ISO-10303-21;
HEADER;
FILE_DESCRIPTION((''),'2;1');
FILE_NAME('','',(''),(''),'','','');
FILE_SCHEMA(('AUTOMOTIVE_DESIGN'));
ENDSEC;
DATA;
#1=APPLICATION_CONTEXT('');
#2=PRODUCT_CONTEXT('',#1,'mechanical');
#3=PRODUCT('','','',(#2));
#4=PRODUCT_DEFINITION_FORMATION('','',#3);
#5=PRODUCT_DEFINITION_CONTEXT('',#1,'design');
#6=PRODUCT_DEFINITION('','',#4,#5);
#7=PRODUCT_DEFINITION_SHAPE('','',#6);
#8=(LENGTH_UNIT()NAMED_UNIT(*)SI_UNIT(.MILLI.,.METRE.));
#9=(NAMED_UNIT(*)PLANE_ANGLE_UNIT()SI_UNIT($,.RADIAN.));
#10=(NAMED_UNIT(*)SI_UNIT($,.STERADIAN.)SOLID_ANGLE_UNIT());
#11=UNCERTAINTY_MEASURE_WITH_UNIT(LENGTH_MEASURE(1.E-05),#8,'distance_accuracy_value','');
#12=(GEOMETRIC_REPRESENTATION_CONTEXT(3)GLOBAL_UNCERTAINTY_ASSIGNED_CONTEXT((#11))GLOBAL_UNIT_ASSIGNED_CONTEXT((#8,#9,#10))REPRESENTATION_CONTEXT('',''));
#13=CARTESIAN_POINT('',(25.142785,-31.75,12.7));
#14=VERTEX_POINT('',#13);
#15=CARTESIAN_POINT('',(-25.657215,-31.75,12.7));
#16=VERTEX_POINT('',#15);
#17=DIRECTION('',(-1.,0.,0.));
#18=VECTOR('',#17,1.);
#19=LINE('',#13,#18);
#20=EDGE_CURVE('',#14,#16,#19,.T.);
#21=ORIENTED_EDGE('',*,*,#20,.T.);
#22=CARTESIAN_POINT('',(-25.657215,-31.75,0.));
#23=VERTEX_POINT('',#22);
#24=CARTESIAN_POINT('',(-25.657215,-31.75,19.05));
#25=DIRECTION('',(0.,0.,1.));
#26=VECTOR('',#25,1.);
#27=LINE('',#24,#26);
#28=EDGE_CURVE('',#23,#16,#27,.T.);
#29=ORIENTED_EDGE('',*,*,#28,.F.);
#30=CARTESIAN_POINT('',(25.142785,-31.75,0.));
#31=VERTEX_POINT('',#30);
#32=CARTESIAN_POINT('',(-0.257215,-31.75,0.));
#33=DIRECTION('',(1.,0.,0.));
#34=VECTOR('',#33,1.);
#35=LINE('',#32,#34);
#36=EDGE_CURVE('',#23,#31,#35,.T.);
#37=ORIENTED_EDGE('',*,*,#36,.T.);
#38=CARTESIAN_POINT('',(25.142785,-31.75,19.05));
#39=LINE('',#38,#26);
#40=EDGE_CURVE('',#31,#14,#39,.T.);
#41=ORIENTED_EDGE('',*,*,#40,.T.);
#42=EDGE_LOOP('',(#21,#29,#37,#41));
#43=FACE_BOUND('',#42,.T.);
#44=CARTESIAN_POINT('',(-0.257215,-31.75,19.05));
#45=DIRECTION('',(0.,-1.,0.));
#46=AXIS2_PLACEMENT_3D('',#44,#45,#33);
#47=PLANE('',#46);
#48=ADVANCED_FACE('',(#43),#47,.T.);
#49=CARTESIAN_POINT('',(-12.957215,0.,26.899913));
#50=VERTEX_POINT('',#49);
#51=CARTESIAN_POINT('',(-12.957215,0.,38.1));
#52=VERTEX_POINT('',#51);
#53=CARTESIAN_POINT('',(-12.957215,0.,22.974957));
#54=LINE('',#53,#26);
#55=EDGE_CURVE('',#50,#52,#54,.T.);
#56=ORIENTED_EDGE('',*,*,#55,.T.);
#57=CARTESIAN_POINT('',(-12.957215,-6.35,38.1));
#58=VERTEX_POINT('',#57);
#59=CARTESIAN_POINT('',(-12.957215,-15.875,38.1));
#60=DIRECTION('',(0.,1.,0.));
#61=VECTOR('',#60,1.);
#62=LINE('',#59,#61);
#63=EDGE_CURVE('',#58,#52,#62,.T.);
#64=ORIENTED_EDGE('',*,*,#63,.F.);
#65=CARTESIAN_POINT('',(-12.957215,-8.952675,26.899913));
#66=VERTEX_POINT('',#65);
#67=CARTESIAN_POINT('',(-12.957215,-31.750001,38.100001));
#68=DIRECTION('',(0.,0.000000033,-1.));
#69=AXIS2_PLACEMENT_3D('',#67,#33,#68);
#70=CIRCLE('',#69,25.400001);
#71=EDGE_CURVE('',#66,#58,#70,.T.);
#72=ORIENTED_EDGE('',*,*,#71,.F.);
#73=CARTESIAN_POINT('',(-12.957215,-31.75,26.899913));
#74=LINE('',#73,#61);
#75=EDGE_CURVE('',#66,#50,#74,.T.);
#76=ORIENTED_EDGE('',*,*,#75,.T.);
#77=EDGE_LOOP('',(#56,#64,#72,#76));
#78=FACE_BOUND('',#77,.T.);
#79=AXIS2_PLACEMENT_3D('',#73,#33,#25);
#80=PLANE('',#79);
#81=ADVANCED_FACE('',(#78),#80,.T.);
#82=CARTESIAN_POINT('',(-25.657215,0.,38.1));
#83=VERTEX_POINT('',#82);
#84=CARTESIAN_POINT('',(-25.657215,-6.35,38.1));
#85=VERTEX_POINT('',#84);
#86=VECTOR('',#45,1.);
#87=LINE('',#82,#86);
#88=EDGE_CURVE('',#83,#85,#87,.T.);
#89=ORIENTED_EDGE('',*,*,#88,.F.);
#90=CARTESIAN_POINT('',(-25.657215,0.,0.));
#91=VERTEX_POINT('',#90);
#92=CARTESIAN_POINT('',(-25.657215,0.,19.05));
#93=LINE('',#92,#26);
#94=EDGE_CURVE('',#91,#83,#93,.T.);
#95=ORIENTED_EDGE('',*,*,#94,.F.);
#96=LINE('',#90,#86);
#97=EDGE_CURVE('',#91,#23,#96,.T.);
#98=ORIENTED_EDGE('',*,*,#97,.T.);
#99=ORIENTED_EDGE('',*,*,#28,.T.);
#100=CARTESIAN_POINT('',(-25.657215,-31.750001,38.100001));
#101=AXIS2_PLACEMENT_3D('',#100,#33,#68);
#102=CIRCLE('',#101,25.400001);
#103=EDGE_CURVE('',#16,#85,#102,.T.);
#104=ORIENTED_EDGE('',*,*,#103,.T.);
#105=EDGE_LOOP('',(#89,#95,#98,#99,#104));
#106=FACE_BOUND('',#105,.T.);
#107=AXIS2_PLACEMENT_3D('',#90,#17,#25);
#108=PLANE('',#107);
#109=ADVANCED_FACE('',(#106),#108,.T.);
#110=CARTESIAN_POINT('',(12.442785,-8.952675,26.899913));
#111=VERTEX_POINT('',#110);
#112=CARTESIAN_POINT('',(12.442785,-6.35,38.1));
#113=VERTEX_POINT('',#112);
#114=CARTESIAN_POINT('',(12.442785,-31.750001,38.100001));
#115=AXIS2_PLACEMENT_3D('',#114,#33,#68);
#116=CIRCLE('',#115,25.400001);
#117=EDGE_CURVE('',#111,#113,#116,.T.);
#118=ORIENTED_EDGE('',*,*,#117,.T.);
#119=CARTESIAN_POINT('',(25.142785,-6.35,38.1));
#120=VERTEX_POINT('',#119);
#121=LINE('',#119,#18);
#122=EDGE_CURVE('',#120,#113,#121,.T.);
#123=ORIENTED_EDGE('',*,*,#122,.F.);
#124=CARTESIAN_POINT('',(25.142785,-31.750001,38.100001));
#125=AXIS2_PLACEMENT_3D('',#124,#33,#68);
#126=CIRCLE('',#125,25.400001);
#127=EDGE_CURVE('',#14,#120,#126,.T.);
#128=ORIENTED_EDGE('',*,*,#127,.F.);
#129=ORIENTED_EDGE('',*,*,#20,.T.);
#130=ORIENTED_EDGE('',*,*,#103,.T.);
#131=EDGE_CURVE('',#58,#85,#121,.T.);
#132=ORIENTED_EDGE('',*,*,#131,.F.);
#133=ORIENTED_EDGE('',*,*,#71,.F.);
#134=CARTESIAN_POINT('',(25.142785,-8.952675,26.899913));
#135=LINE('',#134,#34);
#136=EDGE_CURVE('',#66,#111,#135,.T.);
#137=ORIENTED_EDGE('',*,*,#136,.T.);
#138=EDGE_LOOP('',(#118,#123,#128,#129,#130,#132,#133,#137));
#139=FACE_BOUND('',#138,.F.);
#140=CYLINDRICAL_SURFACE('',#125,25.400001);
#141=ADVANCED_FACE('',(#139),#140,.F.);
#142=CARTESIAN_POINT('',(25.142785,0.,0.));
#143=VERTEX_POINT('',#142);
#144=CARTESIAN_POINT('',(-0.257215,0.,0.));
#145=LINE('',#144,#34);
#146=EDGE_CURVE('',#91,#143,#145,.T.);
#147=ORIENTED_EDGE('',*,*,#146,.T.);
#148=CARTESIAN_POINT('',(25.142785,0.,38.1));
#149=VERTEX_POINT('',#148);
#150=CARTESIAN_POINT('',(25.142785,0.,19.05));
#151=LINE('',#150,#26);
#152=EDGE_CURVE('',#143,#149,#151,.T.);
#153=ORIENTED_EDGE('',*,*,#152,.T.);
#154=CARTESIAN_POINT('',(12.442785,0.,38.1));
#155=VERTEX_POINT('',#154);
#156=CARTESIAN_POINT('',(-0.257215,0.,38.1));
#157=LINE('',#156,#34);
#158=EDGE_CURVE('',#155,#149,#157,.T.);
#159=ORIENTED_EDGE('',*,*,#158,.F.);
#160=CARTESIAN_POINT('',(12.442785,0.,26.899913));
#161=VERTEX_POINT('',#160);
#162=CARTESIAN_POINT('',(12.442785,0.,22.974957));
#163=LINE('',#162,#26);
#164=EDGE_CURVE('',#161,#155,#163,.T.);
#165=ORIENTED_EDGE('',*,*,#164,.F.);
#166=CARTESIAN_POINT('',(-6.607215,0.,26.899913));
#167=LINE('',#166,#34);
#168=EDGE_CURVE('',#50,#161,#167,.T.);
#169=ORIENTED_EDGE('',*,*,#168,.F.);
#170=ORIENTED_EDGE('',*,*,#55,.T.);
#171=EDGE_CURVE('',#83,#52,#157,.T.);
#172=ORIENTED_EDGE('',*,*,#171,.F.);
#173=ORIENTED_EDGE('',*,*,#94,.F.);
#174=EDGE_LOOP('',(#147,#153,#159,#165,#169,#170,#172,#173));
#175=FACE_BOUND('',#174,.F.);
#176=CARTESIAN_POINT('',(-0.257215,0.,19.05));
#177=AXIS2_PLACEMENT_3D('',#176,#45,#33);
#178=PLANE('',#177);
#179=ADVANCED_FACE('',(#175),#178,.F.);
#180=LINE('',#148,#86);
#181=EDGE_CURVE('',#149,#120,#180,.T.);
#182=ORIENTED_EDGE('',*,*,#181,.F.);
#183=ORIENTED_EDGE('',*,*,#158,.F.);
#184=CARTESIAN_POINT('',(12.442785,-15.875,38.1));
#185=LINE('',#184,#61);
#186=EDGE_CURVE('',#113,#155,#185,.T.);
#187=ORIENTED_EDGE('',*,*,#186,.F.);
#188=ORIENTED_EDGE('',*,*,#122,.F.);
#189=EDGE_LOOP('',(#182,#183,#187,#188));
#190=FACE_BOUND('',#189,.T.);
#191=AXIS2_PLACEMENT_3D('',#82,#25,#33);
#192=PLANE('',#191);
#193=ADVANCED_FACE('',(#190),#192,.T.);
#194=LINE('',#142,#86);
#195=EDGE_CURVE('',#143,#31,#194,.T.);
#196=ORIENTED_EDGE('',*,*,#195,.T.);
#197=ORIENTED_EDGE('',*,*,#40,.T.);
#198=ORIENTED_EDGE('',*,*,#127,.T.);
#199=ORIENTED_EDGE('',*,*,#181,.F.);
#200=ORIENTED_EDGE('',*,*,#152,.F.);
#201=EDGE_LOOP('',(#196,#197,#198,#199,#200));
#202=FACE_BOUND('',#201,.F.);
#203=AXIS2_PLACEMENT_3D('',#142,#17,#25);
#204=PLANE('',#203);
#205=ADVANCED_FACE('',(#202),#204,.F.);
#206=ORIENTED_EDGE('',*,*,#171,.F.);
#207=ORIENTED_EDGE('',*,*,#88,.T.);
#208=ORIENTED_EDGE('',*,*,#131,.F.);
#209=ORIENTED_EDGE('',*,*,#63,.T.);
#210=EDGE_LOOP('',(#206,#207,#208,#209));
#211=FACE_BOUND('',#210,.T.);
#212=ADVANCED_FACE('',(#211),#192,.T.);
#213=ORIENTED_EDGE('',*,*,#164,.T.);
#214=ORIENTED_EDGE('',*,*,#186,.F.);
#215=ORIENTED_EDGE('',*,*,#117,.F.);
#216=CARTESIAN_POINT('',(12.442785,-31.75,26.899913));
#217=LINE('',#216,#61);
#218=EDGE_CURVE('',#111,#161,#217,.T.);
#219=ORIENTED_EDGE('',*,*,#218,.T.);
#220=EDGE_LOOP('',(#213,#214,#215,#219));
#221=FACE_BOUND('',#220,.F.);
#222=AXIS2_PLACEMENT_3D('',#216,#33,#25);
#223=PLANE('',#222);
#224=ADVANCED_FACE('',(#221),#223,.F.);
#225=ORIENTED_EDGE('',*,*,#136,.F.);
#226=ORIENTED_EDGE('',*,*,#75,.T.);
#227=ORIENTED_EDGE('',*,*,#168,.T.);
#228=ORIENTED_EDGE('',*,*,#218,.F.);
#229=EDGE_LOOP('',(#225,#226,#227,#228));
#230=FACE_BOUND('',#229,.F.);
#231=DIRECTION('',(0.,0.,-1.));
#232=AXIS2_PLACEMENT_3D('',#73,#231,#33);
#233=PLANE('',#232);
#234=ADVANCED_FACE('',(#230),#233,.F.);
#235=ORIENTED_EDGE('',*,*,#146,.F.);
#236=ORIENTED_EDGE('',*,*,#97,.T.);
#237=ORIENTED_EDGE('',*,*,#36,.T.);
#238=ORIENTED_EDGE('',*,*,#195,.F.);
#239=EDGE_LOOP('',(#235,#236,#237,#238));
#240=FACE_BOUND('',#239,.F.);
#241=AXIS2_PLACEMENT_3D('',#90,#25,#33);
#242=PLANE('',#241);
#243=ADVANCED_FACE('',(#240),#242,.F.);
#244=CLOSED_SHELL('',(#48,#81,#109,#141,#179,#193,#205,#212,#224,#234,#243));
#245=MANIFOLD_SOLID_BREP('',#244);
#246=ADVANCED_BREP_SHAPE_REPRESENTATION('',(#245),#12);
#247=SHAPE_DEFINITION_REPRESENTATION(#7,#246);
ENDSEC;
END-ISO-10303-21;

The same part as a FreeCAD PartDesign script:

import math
import FreeCAD as App
import Part
import Sketcher
from FreeCAD import Vector
Q = App.Units.Quantity

doc = App.newDocument("Part")
params = doc.addObject("Spreadsheet::Sheet", "Params")
for row, (alias, value) in enumerate([
    ("sketch1_width", "2 in"),
    ("sketch1_height", "1.5 in"),
    ("pad1_length", "1.25 in"),
    ("sketch2_radius", "1 in"),
    ("sketch3_width", "1 in"),
], start=1):
    params.set(f"A{row}", alias)
    params.set(f"B{row}", "=" + value)
    params.setAlias(f"B{row}", alias)

body = doc.addObject("PartDesign::Body", "Body")

# Sketch on XZ plane
sketch1 = body.newObject("Sketcher::SketchObject", "Sketch")
sketch1.AttachmentSupport = (doc.getObject("XZ_Plane"), [""])
sketch1.MapMode = "FlatFace"
sketch1.addGeometry([
    Part.LineSegment(Vector(-26, 38, 0), Vector(-26, 0, 0)),
    Part.LineSegment(Vector(-26, 0, 0), Vector(25, 0, 0)),
    Part.LineSegment(Vector(25, 0, 0), Vector(25, 38, 0)),
    Part.LineSegment(Vector(25, 38, 0), Vector(-26, 38, 0)),
], False)
sketch1.addConstraint([
    Sketcher.Constraint("Coincident", 0, 2, 1, 1),
    Sketcher.Constraint("Coincident", 1, 2, 2, 1),
    Sketcher.Constraint("Coincident", 2, 2, 3, 1),
    Sketcher.Constraint("Coincident", 3, 2, 0, 1),
    Sketcher.Constraint("Vertical", 0),
    Sketcher.Constraint("Horizontal", 1),
    Sketcher.Constraint("Vertical", 2),
    Sketcher.Constraint("Horizontal", 3),
    Sketcher.Constraint("PointOnObject", 0, 2, -1),
    Sketcher.Constraint("DistanceX", 1, 1, 1, 2, Q("2 in")),
    Sketcher.Constraint("DistanceY", 0, 2, 0, 1, Q("1.5 in")),
    Sketcher.Constraint("DistanceX", 0, 2, -1, 1, 25.657215),
])
sketch1.setExpression("Constraints[9]", "Params.sketch1_width")
sketch1.setExpression("Constraints[10]", "Params.sketch1_height")
pad1 = body.newObject("PartDesign::Pad", "Pad")
pad1.Profile = sketch1
pad1.setExpression("Length", "Params.pad1_length")

# Sketch on YZ plane
sketch2 = body.newObject("Sketcher::SketchObject", "Sketch001")
sketch2.AttachmentSupport = (doc.getObject("YZ_Plane"), [""])
sketch2.MapMode = "FlatFace"
sketch2.AttachmentOffset = App.Placement(Vector(0, 0, 25.142785), App.Rotation())
sketch2.addGeometry([
    Part.ArcOfCircle(Part.Circle(Vector(-32, 38, 0), Vector(0, 0, 1), 25), math.radians(-90), math.radians(0)),
    Part.LineSegment(Vector(-6, 38, 0), Vector(-32, 38, 0)),
    Part.LineSegment(Vector(-32, 38, 0), Vector(-32, 13, 0)),
], False)
sketch2.addConstraint([
    Sketcher.Constraint("Coincident", 0, 2, 1, 1),
    Sketcher.Constraint("Coincident", 1, 2, 2, 1),
    Sketcher.Constraint("Coincident", 2, 2, 0, 1),
    Sketcher.Constraint("Horizontal", 1),
    Sketcher.Constraint("Vertical", 2),
    Sketcher.Constraint("Coincident", 1, 2, 0, 3),
    Sketcher.Constraint("Radius", 0, Q("1 in")),
    Sketcher.Constraint("DistanceY", -1, 1, 0, 3, Q("1.5 in")),
    Sketcher.Constraint("DistanceX", 0, 3, -1, 1, Q("1.25 in")),
])
sketch2.setExpression("Constraints[6]", "Params.sketch2_radius")
pocket1 = body.newObject("PartDesign::Pocket", "Pocket")
pocket1.Profile = sketch2
pocket1.Type = "ThroughAll"

# Sketch on XZ plane
sketch3 = body.newObject("Sketcher::SketchObject", "Sketch002")
sketch3.AttachmentSupport = (doc.getObject("XZ_Plane"), [""])
sketch3.MapMode = "FlatFace"
sketch3.AttachmentOffset = App.Placement(Vector(0, 0, 1.25 * 25.4), App.Rotation())
sketch3.addGeometry([
    Part.LineSegment(Vector(-13, 38, 0), Vector(-13, 27, 0)),
    Part.LineSegment(Vector(-13, 27, 0), Vector(12, 27, 0)),
    Part.LineSegment(Vector(12, 27, 0), Vector(12, 38, 0)),
    Part.LineSegment(Vector(12, 38, 0), Vector(-13, 38, 0)),
], False)
sketch3.addConstraint([
    Sketcher.Constraint("Coincident", 0, 2, 1, 1),
    Sketcher.Constraint("Coincident", 1, 2, 2, 1),
    Sketcher.Constraint("Coincident", 2, 2, 3, 1),
    Sketcher.Constraint("Coincident", 3, 2, 0, 1),
    Sketcher.Constraint("Vertical", 0),
    Sketcher.Constraint("Horizontal", 1),
    Sketcher.Constraint("Vertical", 2),
    Sketcher.Constraint("Horizontal", 3),
    Sketcher.Constraint("DistanceX", 1, 1, 1, 2, Q("1 in")),
    Sketcher.Constraint("DistanceY", 0, 2, 0, 1, 11.23293),
    Sketcher.Constraint("DistanceX", 0, 2, -1, 1, 12.957215),
    Sketcher.Constraint("DistanceY", -1, 1, 0, 2, 26.899913),
])
sketch3.setExpression("Constraints[8]", "Params.sketch3_width")
pocket2 = body.newObject("PartDesign::Pocket", "Pocket001")
pocket2.Profile = sketch3
pocket2.Type = "ThroughAll"

doc.recompute()
